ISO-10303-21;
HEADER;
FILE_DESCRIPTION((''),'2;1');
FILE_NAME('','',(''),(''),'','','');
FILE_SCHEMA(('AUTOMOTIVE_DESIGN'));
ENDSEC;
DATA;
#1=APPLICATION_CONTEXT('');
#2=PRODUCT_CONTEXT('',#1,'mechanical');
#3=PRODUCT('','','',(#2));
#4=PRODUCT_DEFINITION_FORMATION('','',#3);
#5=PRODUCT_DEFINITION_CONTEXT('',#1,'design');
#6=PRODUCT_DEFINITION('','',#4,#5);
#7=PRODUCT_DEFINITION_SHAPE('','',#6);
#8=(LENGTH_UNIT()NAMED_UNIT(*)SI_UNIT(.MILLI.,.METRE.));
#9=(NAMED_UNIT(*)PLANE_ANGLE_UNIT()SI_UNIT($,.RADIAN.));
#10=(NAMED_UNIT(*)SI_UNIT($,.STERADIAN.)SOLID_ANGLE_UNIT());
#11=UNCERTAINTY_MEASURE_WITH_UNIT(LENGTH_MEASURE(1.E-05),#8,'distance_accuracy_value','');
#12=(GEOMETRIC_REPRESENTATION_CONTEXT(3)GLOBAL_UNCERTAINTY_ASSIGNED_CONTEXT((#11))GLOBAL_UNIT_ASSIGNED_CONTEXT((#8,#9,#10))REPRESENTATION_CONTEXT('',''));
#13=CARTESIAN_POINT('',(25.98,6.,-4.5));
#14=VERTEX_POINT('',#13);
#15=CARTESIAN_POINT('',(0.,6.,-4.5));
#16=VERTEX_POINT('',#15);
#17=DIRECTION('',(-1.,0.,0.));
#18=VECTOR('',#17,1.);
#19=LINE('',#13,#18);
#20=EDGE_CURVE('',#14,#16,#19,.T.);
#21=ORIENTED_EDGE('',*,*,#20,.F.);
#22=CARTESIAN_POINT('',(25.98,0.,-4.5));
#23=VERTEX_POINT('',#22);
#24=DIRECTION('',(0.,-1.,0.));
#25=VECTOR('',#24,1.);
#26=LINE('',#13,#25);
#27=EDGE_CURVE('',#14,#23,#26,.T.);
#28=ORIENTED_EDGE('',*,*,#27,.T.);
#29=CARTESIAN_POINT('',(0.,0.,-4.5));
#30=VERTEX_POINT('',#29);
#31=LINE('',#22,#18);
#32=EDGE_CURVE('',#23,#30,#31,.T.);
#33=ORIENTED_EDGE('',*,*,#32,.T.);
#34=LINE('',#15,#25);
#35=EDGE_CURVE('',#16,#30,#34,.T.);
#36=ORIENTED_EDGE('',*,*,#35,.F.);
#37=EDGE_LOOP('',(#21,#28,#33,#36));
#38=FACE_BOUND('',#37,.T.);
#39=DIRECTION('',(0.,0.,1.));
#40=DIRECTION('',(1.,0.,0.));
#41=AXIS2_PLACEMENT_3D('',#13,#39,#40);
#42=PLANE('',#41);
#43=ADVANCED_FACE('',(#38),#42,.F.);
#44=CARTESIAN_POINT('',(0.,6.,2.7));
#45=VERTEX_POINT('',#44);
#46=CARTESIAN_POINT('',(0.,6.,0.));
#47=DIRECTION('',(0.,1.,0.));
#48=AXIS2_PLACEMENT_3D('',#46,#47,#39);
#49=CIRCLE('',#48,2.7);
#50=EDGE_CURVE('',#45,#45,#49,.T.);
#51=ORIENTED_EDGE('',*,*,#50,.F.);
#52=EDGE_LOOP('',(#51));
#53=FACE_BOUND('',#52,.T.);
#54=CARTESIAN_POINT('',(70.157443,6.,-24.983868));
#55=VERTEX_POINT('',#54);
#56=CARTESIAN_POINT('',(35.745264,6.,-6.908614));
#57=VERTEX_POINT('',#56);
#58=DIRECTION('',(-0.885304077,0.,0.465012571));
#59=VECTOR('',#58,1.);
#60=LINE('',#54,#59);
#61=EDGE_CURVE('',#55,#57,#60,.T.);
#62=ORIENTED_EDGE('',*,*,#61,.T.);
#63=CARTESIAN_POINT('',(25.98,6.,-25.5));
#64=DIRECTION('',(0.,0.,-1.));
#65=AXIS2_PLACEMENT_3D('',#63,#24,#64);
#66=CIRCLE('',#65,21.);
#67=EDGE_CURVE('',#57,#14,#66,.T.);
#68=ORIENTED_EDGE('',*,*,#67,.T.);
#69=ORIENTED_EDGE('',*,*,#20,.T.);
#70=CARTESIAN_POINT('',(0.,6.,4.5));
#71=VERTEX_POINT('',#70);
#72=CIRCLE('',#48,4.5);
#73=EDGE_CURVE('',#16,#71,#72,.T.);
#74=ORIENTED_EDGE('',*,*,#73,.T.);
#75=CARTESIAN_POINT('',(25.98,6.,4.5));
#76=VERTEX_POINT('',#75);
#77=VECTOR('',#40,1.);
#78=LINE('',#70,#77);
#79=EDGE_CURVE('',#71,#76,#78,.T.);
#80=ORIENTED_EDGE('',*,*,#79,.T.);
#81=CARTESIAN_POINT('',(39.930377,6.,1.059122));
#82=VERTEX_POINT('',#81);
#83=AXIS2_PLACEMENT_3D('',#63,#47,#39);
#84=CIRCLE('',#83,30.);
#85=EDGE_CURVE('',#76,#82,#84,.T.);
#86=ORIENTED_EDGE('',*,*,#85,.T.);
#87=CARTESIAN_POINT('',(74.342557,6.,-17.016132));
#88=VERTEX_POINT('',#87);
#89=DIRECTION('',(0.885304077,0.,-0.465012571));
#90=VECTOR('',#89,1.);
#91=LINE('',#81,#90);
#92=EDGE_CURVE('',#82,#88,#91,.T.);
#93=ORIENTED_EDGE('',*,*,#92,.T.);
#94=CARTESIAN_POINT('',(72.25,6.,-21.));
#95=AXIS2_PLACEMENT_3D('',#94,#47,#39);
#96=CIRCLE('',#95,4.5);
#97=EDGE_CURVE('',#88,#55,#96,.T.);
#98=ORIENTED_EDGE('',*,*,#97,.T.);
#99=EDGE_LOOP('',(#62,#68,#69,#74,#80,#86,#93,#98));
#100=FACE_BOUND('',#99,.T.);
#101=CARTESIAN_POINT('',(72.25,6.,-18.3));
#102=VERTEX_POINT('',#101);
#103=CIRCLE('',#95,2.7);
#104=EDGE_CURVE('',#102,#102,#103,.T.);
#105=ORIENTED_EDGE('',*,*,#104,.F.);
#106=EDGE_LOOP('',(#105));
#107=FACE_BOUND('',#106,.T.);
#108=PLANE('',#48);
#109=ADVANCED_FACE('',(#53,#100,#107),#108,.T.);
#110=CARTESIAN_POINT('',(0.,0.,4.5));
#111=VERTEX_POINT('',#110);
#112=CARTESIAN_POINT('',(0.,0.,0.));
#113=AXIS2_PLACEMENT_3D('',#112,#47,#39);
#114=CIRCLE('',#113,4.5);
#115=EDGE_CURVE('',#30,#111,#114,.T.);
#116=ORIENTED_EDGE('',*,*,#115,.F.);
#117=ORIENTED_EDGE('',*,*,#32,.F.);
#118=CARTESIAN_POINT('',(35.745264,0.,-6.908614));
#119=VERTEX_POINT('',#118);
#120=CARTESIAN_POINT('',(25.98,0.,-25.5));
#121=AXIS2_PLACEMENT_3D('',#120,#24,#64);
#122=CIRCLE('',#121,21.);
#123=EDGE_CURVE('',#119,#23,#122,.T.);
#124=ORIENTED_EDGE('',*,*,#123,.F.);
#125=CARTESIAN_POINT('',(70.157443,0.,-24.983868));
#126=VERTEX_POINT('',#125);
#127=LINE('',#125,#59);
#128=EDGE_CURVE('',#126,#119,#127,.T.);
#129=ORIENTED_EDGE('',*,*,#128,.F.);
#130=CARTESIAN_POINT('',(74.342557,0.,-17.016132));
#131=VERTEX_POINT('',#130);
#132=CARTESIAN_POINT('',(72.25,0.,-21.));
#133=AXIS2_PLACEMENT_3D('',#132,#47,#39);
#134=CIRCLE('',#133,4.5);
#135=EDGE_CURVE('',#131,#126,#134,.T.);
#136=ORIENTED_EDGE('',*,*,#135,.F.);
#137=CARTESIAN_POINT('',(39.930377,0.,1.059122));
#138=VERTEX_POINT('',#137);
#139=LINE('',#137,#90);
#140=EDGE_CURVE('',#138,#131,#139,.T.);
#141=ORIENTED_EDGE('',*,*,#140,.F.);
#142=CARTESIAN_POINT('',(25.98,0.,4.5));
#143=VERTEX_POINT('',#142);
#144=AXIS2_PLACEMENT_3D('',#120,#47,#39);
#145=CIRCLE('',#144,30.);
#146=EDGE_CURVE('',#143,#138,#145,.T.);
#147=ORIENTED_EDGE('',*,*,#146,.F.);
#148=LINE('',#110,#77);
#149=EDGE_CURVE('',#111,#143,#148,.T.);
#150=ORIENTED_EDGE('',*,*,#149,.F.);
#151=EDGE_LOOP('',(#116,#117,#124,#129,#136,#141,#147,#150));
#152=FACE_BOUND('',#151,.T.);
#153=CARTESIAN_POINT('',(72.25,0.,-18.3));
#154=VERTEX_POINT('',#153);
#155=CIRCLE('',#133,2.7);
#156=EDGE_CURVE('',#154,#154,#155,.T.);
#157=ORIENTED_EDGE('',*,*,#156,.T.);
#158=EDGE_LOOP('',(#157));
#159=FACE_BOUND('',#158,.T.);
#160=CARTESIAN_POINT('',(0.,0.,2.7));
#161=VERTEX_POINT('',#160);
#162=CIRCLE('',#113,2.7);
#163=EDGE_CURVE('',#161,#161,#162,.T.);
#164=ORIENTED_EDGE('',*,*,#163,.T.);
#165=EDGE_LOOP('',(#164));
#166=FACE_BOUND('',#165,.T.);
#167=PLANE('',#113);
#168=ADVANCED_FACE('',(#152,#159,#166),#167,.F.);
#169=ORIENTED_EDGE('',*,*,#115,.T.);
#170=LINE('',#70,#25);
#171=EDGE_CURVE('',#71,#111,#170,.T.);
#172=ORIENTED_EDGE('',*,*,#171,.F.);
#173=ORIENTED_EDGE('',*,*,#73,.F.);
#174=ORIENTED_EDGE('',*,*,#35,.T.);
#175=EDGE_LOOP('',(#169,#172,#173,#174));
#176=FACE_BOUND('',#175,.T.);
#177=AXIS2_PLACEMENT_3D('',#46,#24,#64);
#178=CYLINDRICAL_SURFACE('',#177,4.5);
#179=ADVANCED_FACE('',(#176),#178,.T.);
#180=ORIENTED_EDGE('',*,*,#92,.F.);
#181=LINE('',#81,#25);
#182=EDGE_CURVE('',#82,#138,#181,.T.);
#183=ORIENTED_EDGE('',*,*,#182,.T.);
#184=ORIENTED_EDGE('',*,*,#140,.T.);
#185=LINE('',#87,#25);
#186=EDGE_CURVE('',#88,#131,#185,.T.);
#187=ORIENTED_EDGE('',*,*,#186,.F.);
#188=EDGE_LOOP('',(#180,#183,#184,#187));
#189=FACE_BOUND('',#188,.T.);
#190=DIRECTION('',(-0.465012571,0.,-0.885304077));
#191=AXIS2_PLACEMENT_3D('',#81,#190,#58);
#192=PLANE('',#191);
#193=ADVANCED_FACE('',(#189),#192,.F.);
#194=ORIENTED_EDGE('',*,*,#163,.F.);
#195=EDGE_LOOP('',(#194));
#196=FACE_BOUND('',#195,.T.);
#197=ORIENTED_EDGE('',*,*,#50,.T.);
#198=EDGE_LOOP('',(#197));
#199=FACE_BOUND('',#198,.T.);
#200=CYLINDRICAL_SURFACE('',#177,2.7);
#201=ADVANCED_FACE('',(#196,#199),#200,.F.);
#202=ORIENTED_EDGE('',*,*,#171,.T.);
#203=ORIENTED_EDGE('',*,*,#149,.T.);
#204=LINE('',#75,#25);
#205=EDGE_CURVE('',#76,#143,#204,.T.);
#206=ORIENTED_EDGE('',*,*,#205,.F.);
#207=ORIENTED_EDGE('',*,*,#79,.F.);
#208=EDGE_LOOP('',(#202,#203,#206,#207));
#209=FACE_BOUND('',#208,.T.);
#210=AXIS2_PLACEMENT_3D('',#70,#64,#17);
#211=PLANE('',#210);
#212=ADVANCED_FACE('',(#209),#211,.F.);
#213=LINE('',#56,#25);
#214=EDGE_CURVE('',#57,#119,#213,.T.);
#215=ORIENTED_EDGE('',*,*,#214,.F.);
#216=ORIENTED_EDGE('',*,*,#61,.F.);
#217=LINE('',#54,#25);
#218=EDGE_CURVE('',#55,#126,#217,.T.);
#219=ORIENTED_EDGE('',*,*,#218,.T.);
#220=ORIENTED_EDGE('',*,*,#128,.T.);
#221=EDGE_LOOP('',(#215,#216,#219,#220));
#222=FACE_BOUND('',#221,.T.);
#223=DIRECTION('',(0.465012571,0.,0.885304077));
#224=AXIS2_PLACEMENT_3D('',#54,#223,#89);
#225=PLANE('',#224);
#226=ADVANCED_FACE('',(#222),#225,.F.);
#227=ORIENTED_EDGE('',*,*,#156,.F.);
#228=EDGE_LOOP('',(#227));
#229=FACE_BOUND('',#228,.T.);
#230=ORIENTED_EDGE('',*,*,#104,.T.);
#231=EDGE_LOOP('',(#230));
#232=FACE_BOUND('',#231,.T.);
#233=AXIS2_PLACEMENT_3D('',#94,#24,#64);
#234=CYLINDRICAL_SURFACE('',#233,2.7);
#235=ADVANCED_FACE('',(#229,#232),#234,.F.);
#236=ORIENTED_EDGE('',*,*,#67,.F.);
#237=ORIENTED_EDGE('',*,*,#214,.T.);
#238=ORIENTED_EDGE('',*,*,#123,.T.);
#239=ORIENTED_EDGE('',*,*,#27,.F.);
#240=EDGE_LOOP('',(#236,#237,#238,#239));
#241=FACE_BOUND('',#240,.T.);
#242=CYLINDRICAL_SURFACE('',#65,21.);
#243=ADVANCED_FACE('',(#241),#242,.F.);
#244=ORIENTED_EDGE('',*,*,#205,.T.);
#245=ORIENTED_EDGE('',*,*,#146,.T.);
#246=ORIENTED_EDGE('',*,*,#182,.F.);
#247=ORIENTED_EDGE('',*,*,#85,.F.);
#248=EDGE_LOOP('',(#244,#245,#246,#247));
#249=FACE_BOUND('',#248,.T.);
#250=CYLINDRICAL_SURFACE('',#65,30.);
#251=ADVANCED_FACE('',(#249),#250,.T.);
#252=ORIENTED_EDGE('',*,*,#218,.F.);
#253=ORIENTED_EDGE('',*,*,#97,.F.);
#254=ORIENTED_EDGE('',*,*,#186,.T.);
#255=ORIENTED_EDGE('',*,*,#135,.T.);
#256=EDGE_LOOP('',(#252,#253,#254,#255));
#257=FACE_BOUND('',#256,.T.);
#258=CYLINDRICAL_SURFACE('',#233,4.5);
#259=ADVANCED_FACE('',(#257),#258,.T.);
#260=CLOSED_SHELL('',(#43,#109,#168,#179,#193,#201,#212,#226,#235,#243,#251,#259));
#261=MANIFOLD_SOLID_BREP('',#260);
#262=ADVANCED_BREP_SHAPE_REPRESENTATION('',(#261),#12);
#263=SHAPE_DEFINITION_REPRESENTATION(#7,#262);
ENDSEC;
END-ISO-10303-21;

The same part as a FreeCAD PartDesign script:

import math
import FreeCAD as App
import Part
import Sketcher
from FreeCAD import Vector

doc = App.newDocument("Part")
body = doc.addObject("PartDesign::Body", "Body")

# Sketch on XZ plane
sketch1 = body.newObject("Sketcher::SketchObject", "Sketch")
sketch1.AttachmentSupport = (doc.getObject("XZ_Plane"), [""])
sketch1.MapMode = "FlatFace"
sketch1.addGeometry(Part.LineSegment(Vector(0, 4.5, 0), Vector(26, 4.5, 0)), False)
sketch1.addGeometry(Part.ArcOfCircle(Part.Circle(Vector(26, -25.5, 0), Vector(0, 0, 1), 30), math.radians(62), math.radians(90)), False)
sketch1.addGeometry(Part.LineSegment(Vector(39.9, 1.1, 0), Vector(74.3, -17, 0)), False)
sketch1.addGeometry(Part.ArcOfCircle(Part.Circle(Vector(72.2, -21, 0), Vector(0, 0, 1), 4.5), math.radians(-118), math.radians(62)), False)
sketch1.addGeometry(Part.LineSegment(Vector(70.2, -25, 0), Vector(35.7, -6.9, 0)), False)
sketch1.addGeometry(Part.ArcOfCircle(Part.Circle(Vector(26, -25.5, 0), Vector(0, 0, 1), 21), math.radians(62), math.radians(90)), False)
sketch1.addGeometry(Part.LineSegment(Vector(26, -4.5, 0), Vector(0, -4.5, 0)), False)
sketch1.addGeometry(Part.ArcOfCircle(Part.Circle(Vector(0, 0, 0), Vector(0, 0, 1), 4.5), math.radians(90), math.radians(270)), False)
sketch1.addGeometry(Part.Circle(Vector(0, 0, 0), Vector(0, 0, 1), 2.7), False)
sketch1.addGeometry(Part.Circle(Vector(72.2, -21, 0), Vector(0, 0, 1), 2.7), False)
sketch1.addConstraint(Sketcher.Constraint("Tangent", 0, 2, 1, 2))
sketch1.addConstraint(Sketcher.Constraint("Tangent", 1, 1, 2, 1))
sketch1.addConstraint(Sketcher.Constraint("Tangent", 2, 2, 3, 2))
sketch1.addConstraint(Sketcher.Constraint("Tangent", 3, 1, 4, 1))
sketch1.addConstraint(Sketcher.Constraint("Tangent", 4, 2, 5, 1))
sketch1.addConstraint(Sketcher.Constraint("Tangent", 5, 2, 6, 1))
sketch1.addConstraint(Sketcher.Constraint("Tangent", 6, 2, 7, 2))
sketch1.addConstraint(Sketcher.Constraint("Tangent", 7, 1, 0, 1))
sketch1.addConstraint(Sketcher.Constraint("Horizontal", 0))
sketch1.addConstraint(Sketcher.Constraint("Horizontal", 6))
sketch1.addConstraint(Sketcher.Constraint("Coincident", 7, 3, -1, 1))
sketch1.addConstraint(Sketcher.Constraint("Coincident", 8, 3, -1, 1))
sketch1.addConstraint(Sketcher.Constraint("Coincident", 5, 3, 1, 3))
sketch1.addConstraint(Sketcher.Constraint("Coincident", 9, 3, 3, 3))
sketch1.addConstraint(Sketcher.Constraint("Equal", 3, 7))
sketch1.addConstraint(Sketcher.Constraint("Equal", 8, 9))
sketch1.addConstraint(Sketcher.Constraint("Radius", 1, 30.0))
sketch1.addConstraint(Sketcher.Constraint("Radius", 5, 21.0))
sketch1.addConstraint(Sketcher.Constraint("Diameter", 8, 5.4))
sketch1.addConstraint(Sketcher.Constraint("DistanceY", 3, 3, -1, 1, 21.0))
sketch1.addConstraint(Sketcher.Constraint("DistanceX", 0, 1, 0, 2, 25.98))
sketch1.addConstraint(Sketcher.Constraint("DistanceX", -1, 1, 3, 3, 72.25))
pad1 = body.newObject("PartDesign::Pad", "Pad")
pad1.Profile = sketch1
pad1.Length = 6
pad1.Reversed = True

doc.recompute()
